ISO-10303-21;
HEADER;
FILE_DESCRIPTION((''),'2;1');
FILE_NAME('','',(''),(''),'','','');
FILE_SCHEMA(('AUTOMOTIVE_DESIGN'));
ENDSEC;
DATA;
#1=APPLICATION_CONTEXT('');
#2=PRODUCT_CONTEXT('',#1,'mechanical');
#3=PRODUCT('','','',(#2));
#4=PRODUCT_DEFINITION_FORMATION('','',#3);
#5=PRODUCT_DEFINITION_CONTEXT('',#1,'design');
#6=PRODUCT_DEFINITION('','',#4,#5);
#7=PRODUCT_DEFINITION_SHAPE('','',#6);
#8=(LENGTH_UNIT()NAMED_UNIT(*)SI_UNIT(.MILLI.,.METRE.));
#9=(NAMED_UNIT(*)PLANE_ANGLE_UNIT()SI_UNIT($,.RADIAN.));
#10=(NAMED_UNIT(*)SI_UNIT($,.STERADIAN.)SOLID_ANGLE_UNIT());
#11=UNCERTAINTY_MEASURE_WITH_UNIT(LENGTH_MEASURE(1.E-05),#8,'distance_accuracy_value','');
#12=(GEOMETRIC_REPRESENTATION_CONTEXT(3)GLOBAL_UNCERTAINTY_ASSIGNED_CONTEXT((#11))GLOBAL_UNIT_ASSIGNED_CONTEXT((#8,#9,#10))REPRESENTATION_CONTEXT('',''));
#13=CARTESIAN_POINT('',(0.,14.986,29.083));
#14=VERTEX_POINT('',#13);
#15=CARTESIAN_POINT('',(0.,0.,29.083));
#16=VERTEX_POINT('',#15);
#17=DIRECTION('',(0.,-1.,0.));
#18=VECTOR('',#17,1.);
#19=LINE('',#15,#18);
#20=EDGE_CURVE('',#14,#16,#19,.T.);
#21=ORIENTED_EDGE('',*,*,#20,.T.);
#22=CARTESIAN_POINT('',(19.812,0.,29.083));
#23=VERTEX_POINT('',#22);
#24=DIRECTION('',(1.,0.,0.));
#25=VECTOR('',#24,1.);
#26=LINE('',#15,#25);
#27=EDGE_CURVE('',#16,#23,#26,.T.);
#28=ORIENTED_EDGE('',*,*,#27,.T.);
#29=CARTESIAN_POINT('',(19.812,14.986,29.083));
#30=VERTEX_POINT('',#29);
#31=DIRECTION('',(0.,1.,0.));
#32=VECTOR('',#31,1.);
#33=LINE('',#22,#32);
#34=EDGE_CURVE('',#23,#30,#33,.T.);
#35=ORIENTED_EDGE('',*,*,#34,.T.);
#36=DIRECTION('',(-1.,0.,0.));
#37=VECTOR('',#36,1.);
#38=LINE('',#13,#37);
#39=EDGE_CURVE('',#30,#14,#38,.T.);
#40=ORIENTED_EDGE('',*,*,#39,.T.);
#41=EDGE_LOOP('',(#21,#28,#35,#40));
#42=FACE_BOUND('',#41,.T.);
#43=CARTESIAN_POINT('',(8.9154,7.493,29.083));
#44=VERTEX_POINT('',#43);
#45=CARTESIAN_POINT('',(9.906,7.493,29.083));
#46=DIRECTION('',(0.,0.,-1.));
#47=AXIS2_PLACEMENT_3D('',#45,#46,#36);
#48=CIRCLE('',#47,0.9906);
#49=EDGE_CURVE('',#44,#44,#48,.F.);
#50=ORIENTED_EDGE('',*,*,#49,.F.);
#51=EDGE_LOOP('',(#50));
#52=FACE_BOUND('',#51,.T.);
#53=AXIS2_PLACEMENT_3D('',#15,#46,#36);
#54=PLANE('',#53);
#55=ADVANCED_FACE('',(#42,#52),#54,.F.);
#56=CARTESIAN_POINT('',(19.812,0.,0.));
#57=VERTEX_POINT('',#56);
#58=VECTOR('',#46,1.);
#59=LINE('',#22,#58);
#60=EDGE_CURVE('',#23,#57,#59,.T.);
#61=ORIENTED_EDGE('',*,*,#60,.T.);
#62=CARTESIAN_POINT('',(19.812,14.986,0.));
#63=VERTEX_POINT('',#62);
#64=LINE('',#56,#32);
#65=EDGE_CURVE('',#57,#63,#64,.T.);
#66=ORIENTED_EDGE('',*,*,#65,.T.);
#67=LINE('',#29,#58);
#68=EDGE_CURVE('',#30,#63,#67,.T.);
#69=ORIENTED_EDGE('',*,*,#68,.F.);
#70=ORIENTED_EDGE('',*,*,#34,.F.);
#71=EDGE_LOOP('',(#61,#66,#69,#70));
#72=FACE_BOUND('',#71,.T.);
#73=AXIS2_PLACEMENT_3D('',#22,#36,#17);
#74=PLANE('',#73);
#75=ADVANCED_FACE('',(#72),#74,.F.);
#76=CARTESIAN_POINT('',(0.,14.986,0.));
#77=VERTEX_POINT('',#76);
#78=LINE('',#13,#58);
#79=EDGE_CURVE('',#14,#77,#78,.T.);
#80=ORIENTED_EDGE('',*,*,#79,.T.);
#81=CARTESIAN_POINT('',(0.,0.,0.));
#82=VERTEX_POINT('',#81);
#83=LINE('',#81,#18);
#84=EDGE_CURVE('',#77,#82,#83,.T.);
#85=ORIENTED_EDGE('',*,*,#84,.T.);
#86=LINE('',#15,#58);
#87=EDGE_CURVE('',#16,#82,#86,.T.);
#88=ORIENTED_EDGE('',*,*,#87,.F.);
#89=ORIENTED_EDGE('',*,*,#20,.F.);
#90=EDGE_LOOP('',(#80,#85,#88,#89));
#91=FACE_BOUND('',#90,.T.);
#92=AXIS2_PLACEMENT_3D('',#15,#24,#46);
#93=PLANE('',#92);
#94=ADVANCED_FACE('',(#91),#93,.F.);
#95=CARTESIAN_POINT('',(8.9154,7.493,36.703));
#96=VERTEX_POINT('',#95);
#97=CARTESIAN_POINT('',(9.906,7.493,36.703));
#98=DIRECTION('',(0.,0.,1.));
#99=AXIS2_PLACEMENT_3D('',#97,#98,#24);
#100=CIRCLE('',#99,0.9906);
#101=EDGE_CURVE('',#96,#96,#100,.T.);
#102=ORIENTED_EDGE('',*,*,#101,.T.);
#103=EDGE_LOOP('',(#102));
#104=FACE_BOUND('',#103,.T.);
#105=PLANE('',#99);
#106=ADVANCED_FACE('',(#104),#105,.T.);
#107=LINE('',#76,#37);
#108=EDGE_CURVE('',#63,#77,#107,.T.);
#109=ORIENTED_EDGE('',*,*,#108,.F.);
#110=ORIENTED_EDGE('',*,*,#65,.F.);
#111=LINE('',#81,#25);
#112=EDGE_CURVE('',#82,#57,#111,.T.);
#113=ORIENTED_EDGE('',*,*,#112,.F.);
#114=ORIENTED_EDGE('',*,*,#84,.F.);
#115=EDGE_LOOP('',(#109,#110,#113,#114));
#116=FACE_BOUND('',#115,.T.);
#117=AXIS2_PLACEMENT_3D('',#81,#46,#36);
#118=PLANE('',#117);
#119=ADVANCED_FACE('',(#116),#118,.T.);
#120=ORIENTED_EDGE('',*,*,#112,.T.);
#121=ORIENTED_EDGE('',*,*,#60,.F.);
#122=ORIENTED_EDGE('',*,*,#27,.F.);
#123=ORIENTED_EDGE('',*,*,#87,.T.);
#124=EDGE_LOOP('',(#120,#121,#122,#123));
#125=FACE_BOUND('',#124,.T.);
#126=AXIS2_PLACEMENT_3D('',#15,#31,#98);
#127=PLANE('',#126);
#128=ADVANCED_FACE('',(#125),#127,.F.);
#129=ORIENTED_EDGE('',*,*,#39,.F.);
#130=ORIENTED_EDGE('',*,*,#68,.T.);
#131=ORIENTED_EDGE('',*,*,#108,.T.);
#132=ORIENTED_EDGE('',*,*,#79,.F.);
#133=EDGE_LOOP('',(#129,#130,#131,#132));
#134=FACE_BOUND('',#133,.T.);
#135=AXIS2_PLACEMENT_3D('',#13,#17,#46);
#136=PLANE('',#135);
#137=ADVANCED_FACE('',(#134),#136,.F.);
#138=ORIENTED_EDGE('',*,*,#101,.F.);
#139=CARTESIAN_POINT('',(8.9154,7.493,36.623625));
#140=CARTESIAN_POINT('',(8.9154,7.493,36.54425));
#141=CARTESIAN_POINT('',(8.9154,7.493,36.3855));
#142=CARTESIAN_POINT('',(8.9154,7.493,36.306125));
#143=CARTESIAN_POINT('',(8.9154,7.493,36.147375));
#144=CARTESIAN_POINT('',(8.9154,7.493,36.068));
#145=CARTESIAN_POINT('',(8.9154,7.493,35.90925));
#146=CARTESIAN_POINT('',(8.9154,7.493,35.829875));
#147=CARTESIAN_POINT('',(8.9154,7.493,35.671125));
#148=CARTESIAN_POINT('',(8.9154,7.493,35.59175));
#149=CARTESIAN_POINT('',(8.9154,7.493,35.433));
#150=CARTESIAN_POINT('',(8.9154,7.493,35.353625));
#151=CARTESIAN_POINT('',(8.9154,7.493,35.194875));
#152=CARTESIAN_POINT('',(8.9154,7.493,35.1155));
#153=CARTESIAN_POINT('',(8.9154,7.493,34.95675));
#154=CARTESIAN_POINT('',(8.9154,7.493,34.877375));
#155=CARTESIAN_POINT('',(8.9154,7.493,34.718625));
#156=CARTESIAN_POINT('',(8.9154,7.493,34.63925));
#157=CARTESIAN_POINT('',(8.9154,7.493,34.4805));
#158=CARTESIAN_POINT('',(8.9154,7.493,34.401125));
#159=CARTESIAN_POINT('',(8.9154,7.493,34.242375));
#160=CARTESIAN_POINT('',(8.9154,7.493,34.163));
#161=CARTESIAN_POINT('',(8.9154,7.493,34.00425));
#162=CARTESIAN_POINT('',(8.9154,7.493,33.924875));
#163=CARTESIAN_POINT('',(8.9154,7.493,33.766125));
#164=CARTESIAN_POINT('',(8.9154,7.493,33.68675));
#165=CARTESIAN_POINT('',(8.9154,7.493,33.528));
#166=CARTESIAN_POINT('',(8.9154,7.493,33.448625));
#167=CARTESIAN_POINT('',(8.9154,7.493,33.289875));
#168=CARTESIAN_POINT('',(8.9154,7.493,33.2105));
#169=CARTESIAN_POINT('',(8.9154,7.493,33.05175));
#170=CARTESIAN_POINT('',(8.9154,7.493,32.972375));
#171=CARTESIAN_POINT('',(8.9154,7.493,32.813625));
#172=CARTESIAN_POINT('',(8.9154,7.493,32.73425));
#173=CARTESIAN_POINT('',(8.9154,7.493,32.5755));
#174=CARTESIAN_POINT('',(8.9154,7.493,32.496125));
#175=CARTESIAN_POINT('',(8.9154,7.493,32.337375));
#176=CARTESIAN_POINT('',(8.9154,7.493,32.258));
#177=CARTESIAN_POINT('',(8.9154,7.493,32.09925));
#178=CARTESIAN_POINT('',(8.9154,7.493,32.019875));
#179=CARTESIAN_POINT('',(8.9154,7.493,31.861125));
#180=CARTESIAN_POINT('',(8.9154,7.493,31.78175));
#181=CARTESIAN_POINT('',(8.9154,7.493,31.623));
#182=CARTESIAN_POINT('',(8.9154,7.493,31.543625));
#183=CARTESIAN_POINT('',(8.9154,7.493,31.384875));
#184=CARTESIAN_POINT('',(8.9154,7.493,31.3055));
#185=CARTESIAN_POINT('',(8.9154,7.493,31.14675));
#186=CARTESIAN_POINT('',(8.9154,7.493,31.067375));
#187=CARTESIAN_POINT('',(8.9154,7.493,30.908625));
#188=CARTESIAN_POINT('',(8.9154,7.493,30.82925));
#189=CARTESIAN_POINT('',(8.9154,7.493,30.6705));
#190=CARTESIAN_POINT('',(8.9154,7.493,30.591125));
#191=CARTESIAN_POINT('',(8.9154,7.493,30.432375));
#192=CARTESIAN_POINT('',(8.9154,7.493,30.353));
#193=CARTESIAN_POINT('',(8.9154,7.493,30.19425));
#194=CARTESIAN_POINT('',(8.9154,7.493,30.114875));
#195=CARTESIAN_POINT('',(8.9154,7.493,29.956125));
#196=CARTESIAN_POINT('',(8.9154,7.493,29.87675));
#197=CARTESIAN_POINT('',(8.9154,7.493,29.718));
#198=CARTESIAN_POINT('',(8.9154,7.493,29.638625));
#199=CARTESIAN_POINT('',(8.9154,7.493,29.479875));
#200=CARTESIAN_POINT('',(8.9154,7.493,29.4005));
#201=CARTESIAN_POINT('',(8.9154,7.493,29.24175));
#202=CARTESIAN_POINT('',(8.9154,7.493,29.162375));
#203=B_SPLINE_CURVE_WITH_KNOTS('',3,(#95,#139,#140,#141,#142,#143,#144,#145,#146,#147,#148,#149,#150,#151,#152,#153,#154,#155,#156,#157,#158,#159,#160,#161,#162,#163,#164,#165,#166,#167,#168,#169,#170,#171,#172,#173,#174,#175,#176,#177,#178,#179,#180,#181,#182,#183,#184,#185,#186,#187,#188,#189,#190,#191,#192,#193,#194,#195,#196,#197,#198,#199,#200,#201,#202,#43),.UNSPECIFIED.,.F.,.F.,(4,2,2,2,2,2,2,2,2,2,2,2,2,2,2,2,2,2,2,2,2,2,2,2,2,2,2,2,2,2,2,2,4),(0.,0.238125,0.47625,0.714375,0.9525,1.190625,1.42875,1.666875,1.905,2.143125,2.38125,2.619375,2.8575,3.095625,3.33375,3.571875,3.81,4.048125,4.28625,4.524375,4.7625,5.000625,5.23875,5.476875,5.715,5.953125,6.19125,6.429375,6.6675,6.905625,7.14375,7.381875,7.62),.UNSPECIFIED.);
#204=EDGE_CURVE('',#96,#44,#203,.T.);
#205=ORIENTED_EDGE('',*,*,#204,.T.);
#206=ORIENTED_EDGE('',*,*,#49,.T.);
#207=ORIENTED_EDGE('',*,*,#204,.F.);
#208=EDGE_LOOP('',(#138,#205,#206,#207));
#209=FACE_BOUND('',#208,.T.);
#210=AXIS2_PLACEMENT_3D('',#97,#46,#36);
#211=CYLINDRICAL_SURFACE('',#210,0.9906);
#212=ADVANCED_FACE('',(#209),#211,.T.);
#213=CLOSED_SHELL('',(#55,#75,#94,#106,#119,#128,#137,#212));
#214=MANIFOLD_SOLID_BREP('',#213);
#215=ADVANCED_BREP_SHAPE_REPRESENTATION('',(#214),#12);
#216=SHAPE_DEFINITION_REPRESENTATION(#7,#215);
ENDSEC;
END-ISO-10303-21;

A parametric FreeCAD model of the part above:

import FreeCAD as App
import Part
import Sketcher
Q = App.Units.Quantity


def add_polygon(sketch, points):
    """Adds a closed chain of lines whose ends are joined by coincident constraints."""
    first, n = sketch.GeometryCount, len(points)
    for a, b in zip(points, points[1:] + points[:1]):
        sketch.addGeometry(Part.LineSegment(App.Vector(*a, 0), App.Vector(*b, 0)), False)
    for i in range(n):
        sketch.addConstraint(Sketcher.Constraint("Coincident", first + i, 2, first + (i + 1) % n, 1))

doc = App.newDocument("Part")
body = doc.addObject("PartDesign::Body", "Body")

sketch1 = body.newObject("Sketcher::SketchObject", "Sketch")
sketch1.AttachmentSupport = (doc.getObject("XY_Plane"), [""])
sketch1.MapMode = "FlatFace"
add_polygon(sketch1, [(0, 15), (0, 0), (20, 0), (20, 15)])
sketch1.addConstraint([
    Sketcher.Constraint("Vertical", 0),
    Sketcher.Constraint("Horizontal", 1),
    Sketcher.Constraint("Vertical", 2),
    Sketcher.Constraint("Horizontal", 3),
    Sketcher.Constraint("Coincident", 0, 2, -1, 1),
    Sketcher.Constraint("DistanceX", 1, 1, 1, 2, Q("0.78 in")),
    Sketcher.Constraint("DistanceY", 0, 2, 0, 1, Q("0.59 in")),
])
pad1 = body.newObject("PartDesign::Pad", "Pad")
pad1.Profile = sketch1
pad1.Length = Q("1.145 in")

sketch2 = body.newObject("Sketcher::SketchObject", "Sketch001")
sketch2.AttachmentSupport = (doc.getObject("XY_Plane"), [""])
sketch2.MapMode = "FlatFace"
sketch2.AttachmentOffset = App.Placement(App.Vector(0, 0, 1.145 * 25.4), App.Rotation())
sketch2.addGeometry(Part.Circle(App.Vector(9.9, 7.5, 0), App.Vector(0, 0, 1), 1), False)
sketch2.addConstraint([
    Sketcher.Constraint("Diameter", 0, Q("0.078 in")),
    Sketcher.Constraint("DistanceX", -1, 1, 0, 3, Q("0.39 in")),
    Sketcher.Constraint("DistanceY", -1, 1, 0, 3, Q("0.295 in")),
])
pad2 = body.newObject("PartDesign::Pad", "Pad001")
pad2.Profile = sketch2
pad2.Length = Q("0.3 in")

doc.recompute()
